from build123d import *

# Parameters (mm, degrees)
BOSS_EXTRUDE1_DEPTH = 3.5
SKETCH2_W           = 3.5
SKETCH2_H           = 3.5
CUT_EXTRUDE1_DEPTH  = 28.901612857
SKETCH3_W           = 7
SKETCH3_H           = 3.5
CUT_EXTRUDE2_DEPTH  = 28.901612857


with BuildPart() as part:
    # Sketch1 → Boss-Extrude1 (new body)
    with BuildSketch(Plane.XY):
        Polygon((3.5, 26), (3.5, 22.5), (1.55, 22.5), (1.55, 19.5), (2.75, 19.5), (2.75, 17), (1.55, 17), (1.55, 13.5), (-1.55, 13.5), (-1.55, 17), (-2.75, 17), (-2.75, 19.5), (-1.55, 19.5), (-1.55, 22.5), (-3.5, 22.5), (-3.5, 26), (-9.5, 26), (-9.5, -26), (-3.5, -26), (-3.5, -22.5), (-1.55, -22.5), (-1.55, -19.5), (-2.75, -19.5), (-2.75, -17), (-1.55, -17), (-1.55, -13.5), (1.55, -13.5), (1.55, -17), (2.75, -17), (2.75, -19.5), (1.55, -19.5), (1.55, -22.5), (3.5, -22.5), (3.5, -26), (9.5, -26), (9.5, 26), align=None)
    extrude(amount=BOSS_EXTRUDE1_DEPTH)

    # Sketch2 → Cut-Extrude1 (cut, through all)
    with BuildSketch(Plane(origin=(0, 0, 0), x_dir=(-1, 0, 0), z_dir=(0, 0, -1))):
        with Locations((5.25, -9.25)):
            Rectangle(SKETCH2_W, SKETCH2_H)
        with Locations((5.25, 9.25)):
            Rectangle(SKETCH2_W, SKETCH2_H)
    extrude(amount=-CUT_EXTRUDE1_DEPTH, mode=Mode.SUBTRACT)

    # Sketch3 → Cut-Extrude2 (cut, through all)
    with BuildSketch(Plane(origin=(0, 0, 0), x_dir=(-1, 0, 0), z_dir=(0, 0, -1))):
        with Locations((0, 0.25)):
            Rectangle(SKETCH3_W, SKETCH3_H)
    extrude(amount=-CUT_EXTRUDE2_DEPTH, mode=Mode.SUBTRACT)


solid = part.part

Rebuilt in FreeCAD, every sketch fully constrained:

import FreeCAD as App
import Part
import Sketcher

V = App.Vector
Q = App.Units.Quantity

doc = App.newDocument("Part")
params = doc.addObject("Spreadsheet::Sheet", "Params")
for row, (alias, value) in enumerate([
    ("sketch1_width", "6 mm"),
    ("sketch1_height", "3 mm"),
    ("sketch1_height2", "52 mm"),
    ("sketch1_width2", "1.2 mm"),
    ("sketch1_width3", "3.1 mm"),
    ("pad1_length", "3.5 mm"),
    ("sketch2_width", "3.5 mm"),
    ("sketch3_width", "7 mm"),
    ("sketch3_height", "3.5 mm"),
], start=1):
    params.set(f"A{row}", alias)
    params.set(f"B{row}", "=" + value)
    params.setAlias(f"B{row}", alias)

body = doc.addObject("PartDesign::Body", "Body")

sketch1 = doc.addObject("Sketcher::SketchObject", "Sketch")
body.addObject(sketch1)
sketch1.AttachmentSupport = (doc.XY_Plane, [""])
sketch1.MapMode = "FlatFace"
sketch1.addGeometry(Part.LineSegment(V(3.5, 26, 0), V(3.5, 22.5, 0)), False)
sketch1.addGeometry(Part.LineSegment(V(3.5, 22.5, 0), V(1.55, 22.5, 0)), False)
sketch1.addGeometry(Part.LineSegment(V(1.55, 22.5, 0), V(1.55, 19.5, 0)), False)
sketch1.addGeometry(Part.LineSegment(V(1.55, 19.5, 0), V(2.75, 19.5, 0)), False)
sketch1.addGeometry(Part.LineSegment(V(2.75, 19.5, 0), V(2.75, 17, 0)), False)
sketch1.addGeometry(Part.LineSegment(V(2.75, 17, 0), V(1.55, 17, 0)), False)
sketch1.addGeometry(Part.LineSegment(V(1.55, 17, 0), V(1.55, 13.5, 0)), False)
sketch1.addGeometry(Part.LineSegment(V(1.55, 13.5, 0), V(-1.55, 13.5, 0)), False)
sketch1.addGeometry(Part.LineSegment(V(-1.55, 13.5, 0), V(-1.55, 17, 0)), False)
sketch1.addGeometry(Part.LineSegment(V(-1.55, 17, 0), V(-2.75, 17, 0)), False)
sketch1.addGeometry(Part.LineSegment(V(-2.75, 17, 0), V(-2.75, 19.5, 0)), False)
sketch1.addGeometry(Part.LineSegment(V(-2.75, 19.5, 0), V(-1.55, 19.5, 0)), False)
sketch1.addGeometry(Part.LineSegment(V(-1.55, 19.5, 0), V(-1.55, 22.5, 0)), False)
sketch1.addGeometry(Part.LineSegment(V(-1.55, 22.5, 0), V(-3.5, 22.5, 0)), False)
sketch1.addGeometry(Part.LineSegment(V(-3.5, 22.5, 0), V(-3.5, 26, 0)), False)
sketch1.addGeometry(Part.LineSegment(V(-3.5, 26, 0), V(-9.5, 26, 0)), False)
sketch1.addGeometry(Part.LineSegment(V(-9.5, 26, 0), V(-9.5, -26, 0)), False)
sketch1.addGeometry(Part.LineSegment(V(-9.5, -26, 0), V(-3.5, -26, 0)), False)
sketch1.addGeometry(Part.LineSegment(V(-3.5, -26, 0), V(-3.5, -22.5, 0)), False)
sketch1.addGeometry(Part.LineSegment(V(-3.5, -22.5, 0), V(-1.55, -22.5, 0)), False)
sketch1.addGeometry(Part.LineSegment(V(-1.55, -22.5, 0), V(-1.55, -19.5, 0)), False)
sketch1.addGeometry(Part.LineSegment(V(-1.55, -19.5, 0), V(-2.75, -19.5, 0)), False)
sketch1.addGeometry(Part.LineSegment(V(-2.75, -19.5, 0), V(-2.75, -17, 0)), False)
sketch1.addGeometry(Part.LineSegment(V(-2.75, -17, 0), V(-1.55, -17, 0)), False)
sketch1.addGeometry(Part.LineSegment(V(-1.55, -17, 0), V(-1.55, -13.5, 0)), False)
sketch1.addGeometry(Part.LineSegment(V(-1.55, -13.5, 0), V(1.55, -13.5, 0)), False)
sketch1.addGeometry(Part.LineSegment(V(1.55, -13.5, 0), V(1.55, -17, 0)), False)
sketch1.addGeometry(Part.LineSegment(V(1.55, -17, 0), V(2.75, -17, 0)), False)
sketch1.addGeometry(Part.LineSegment(V(2.75, -17, 0), V(2.75, -19.5, 0)), False)
sketch1.addGeometry(Part.LineSegment(V(2.75, -19.5, 0), V(1.55, -19.5, 0)), False)
sketch1.addGeometry(Part.LineSegment(V(1.55, -19.5, 0), V(1.55, -22.5, 0)), False)
sketch1.addGeometry(Part.LineSegment(V(1.55, -22.5, 0), V(3.5, -22.5, 0)), False)
sketch1.addGeometry(Part.LineSegment(V(3.5, -22.5, 0), V(3.5, -26, 0)), False)
sketch1.addGeometry(Part.LineSegment(V(3.5, -26, 0), V(9.5, -26, 0)), False)
sketch1.addGeometry(Part.LineSegment(V(9.5, -26, 0), V(9.5, 26, 0)), False)
sketch1.addGeometry(Part.LineSegment(V(9.5, 26, 0), V(3.5, 26, 0)), False)
sketch1.addConstraint(Sketcher.Constraint("Coincident", 0, 2, 1, 1))
sketch1.addConstraint(Sketcher.Constraint("Coincident", 1, 2, 2, 1))
sketch1.addConstraint(Sketcher.Constraint("Coincident", 2, 2, 3, 1))
sketch1.addConstraint(Sketcher.Constraint("Coincident", 3, 2, 4, 1))
sketch1.addConstraint(Sketcher.Constraint("Coincident", 4, 2, 5, 1))
sketch1.addConstraint(Sketcher.Constraint("Coincident", 5, 2, 6, 1))
sketch1.addConstraint(Sketcher.Constraint("Coincident", 6, 2, 7, 1))
sketch1.addConstraint(Sketcher.Constraint("Coincident", 7, 2, 8, 1))
sketch1.addConstraint(Sketcher.Constraint("Coincident", 8, 2, 9, 1))
sketch1.addConstraint(Sketcher.Constraint("Coincident", 9, 2, 10, 1))
sketch1.addConstraint(Sketcher.Constraint("Coincident", 10, 2, 11, 1))
sketch1.addConstraint(Sketcher.Constraint("Coincident", 11, 2, 12, 1))
sketch1.addConstraint(Sketcher.Constraint("Coincident", 12, 2, 13, 1))
sketch1.addConstraint(Sketcher.Constraint("Coincident", 13, 2, 14, 1))
sketch1.addConstraint(Sketcher.Constraint("Coincident", 14, 2, 15, 1))
sketch1.addConstraint(Sketcher.Constraint("Coincident", 15, 2, 16, 1))
sketch1.addConstraint(Sketcher.Constraint("Coincident", 16, 2, 17, 1))
sketch1.addConstraint(Sketcher.Constraint("Coincident", 17, 2, 18, 1))
sketch1.addConstraint(Sketcher.Constraint("Coincident", 18, 2, 19, 1))
sketch1.addConstraint(Sketcher.Constraint("Coincident", 19, 2, 20, 1))
sketch1.addConstraint(Sketcher.Constraint("Coincident", 20, 2, 21, 1))
sketch1.addConstraint(Sketcher.Constraint("Coincident", 21, 2, 22, 1))
sketch1.addConstraint(Sketcher.Constraint("Coincident", 22, 2, 23, 1))
sketch1.addConstraint(Sketcher.Constraint("Coincident", 23, 2, 24, 1))
sketch1.addConstraint(Sketcher.Constraint("Coincident", 24, 2, 25, 1))
sketch1.addConstraint(Sketcher.Constraint("Coincident", 25, 2, 26, 1))
sketch1.addConstraint(Sketcher.Constraint("Coincident", 26, 2, 27, 1))
sketch1.addConstraint(Sketcher.Constraint("Coincident", 27, 2, 28, 1))
sketch1.addConstraint(Sketcher.Constraint("Coincident", 28, 2, 29, 1))
sketch1.addConstraint(Sketcher.Constraint("Coincident", 29, 2, 30, 1))
sketch1.addConstraint(Sketcher.Constraint("Coincident", 30, 2, 31, 1))
sketch1.addConstraint(Sketcher.Constraint("Coincident", 31, 2, 32, 1))
sketch1.addConstraint(Sketcher.Constraint("Coincident", 32, 2, 33, 1))
sketch1.addConstraint(Sketcher.Constraint("Coincident", 33, 2, 34, 1))
sketch1.addConstraint(Sketcher.Constraint("Coincident", 34, 2, 35, 1))
sketch1.addConstraint(Sketcher.Constraint("Coincident", 35, 2, 0, 1))
sketch1.addConstraint(Sketcher.Constraint("Vertical", 0))
sketch1.addConstraint(Sketcher.Constraint("Horizontal", 1))
sketch1.addConstraint(Sketcher.Constraint("Vertical", 2))
sketch1.addConstraint(Sketcher.Constraint("Horizontal", 3))
sketch1.addConstraint(Sketcher.Constraint("Vertical", 4))
sketch1.addConstraint(Sketcher.Constraint("Horizontal", 5))
sketch1.addConstraint(Sketcher.Constraint("Vertical", 6))
sketch1.addConstraint(Sketcher.Constraint("Horizontal", 7))
sketch1.addConstraint(Sketcher.Constraint("Vertical", 8))
sketch1.addConstraint(Sketcher.Constraint("Horizontal", 9))
sketch1.addConstraint(Sketcher.Constraint("Vertical", 10))
sketch1.addConstraint(Sketcher.Constraint("Horizontal", 11))
sketch1.addConstraint(Sketcher.Constraint("Vertical", 12))
sketch1.addConstraint(Sketcher.Constraint("Horizontal", 13))
sketch1.addConstraint(Sketcher.Constraint("Vertical", 14))
sketch1.addConstraint(Sketcher.Constraint("Horizontal", 15))
sketch1.addConstraint(Sketcher.Constraint("Vertical", 16))
sketch1.addConstraint(Sketcher.Constraint("Horizontal", 17))
sketch1.addConstraint(Sketcher.Constraint("Vertical", 18))
sketch1.addConstraint(Sketcher.Constraint("Horizontal", 19))
sketch1.addConstraint(Sketcher.Constraint("Vertical", 20))
sketch1.addConstraint(Sketcher.Constraint("Horizontal", 21))
sketch1.addConstraint(Sketcher.Constraint("Vertical", 22))
sketch1.addConstraint(Sketcher.Constraint("Horizontal", 23))
sketch1.addConstraint(Sketcher.Constraint("Vertical", 24))
sketch1.addConstraint(Sketcher.Constraint("Horizontal", 25))
sketch1.addConstraint(Sketcher.Constraint("Vertical", 26))
sketch1.addConstraint(Sketcher.Constraint("Horizontal", 27))
sketch1.addConstraint(Sketcher.Constraint("Vertical", 28))
sketch1.addConstraint(Sketcher.Constraint("Horizontal", 29))
sketch1.addConstraint(Sketcher.Constraint("Vertical", 30))
sketch1.addConstraint(Sketcher.Constraint("Horizontal", 31))
sketch1.addConstraint(Sketcher.Constraint("Vertical", 32))
sketch1.addConstraint(Sketcher.Constraint("Horizontal", 33))
sketch1.addConstraint(Sketcher.Constraint("Vertical", 34))
sketch1.addConstraint(Sketcher.Constraint("Horizontal", 35))
sketch1.addConstraint(Sketcher.Constraint("Symmetric", 0, 2, 18, 2, -1, 1))
sketch1.addConstraint(Sketcher.Constraint("Symmetric", 2, 2, 20, 2, -1, 1))
sketch1.addConstraint(Sketcher.Constraint("Symmetric", 4, 2, 22, 2, -1, 1))
sketch1.addConstraint(Sketcher.Constraint("Symmetric", 6, 2, 24, 2, -1, 1))
sketch1.addConstraint(Sketcher.Constraint("Symmetric", 8, 2, 26, 2, -1, 1))
sketch1.addConstraint(Sketcher.Constraint("Symmetric", 10, 2, 28, 2, -1, 1))
sketch1.addConstraint(Sketcher.Constraint("Symmetric", 12, 2, 30, 2, -1, 1))
sketch1.addConstraint(Sketcher.Constraint("Symmetric", 14, 2, 32, 2, -1, 1))
sketch1.addConstraint(Sketcher.Constraint("Symmetric", 16, 2, 34, 2, -1, 1))
sketch1.addConstraint(Sketcher.Constraint("Symmetric", 5, 2, 8, 2, -2))
sketch1.addConstraint(Sketcher.Constraint("Symmetric", 3, 2, 10, 2, -2))
sketch1.addConstraint(Sketcher.Constraint("Symmetric", 1, 2, 12, 2, -2))
sketch1.addConstraint(Sketcher.Constraint("Symmetric", 17, 2, 32, 2, -2))
sketch1.addConstraint(Sketcher.Constraint("Vertical", 2, 2, 5, 2))
sketch1.addConstraint(Sketcher.Constraint("Equal", 0, 6))
sketch1.addConstraint(Sketcher.Constraint("DistanceX", 15, 2, 15, 1, Q("6 mm")))
sketch1.addConstraint(Sketcher.Constraint("DistanceY", 2, 2, 2, 1, Q("3 mm")))
sketch1.addConstraint(Sketcher.Constraint("DistanceY", 16, 2, 16, 1, Q("52 mm")))
sketch1.addConstraint(Sketcher.Constraint("DistanceX", 3, 1, 3, 2, Q("1.2 mm")))
sketch1.addConstraint(Sketcher.Constraint("DistanceX", 7, 2, 7, 1, Q("3.1 mm")))
sketch1.addConstraint(Sketcher.Constraint("DistanceY", 0, 2, 0, 1, Q("3.5 mm")))
sketch1.addConstraint(Sketcher.Constraint("DistanceY", 4, 2, 4, 1, Q("2.5 mm")))
sketch1.addConstraint(Sketcher.Constraint("DistanceX", 1, 2, 1, 1, Q("1.95 mm")))
sketch1.setExpression("Constraints[87]", "Params.sketch1_width")
sketch1.setExpression("Constraints[88]", "Params.sketch1_height")
sketch1.setExpression("Constraints[89]", "Params.sketch1_height2")
sketch1.setExpression("Constraints[90]", "Params.sketch1_width2")
sketch1.setExpression("Constraints[91]", "Params.sketch1_width3")
pad1 = doc.addObject("PartDesign::Pad", "Pad")
body.addObject(pad1)
pad1.Profile = sketch1
pad1.setExpression("Length", "Params.pad1_length")

sketch2 = doc.addObject("Sketcher::SketchObject", "Sketch001")
body.addObject(sketch2)
sketch2.AttachmentSupport = (doc.XY_Plane, [""])
sketch2.MapMode = "FlatFace"
sketch2.addGeometry(Part.LineSegment(V(-3.5, -7.5, 0), V(-3.5, -11, 0)), False)
sketch2.addGeometry(Part.LineSegment(V(-3.5, -11, 0), V(-7, -11, 0)), False)
sketch2.addGeometry(Part.LineSegment(V(-7, -11, 0), V(-7, -7.5, 0)), False)
sketch2.addGeometry(Part.LineSegment(V(-7, -7.5, 0), V(-3.5, -7.5, 0)), False)
sketch2.addGeometry(Part.LineSegment(V(-3.5, 11, 0), V(-3.5, 7.5, 0)), False)
sketch2.addGeometry(Part.LineSegment(V(-3.5, 7.5, 0), V(-7, 7.5, 0)), False)
sketch2.addGeometry(Part.LineSegment(V(-7, 7.5, 0), V(-7, 11, 0)), False)
sketch2.addGeometry(Part.LineSegment(V(-7, 11, 0), V(-3.5, 11, 0)), False)
sketch2.addConstraint(Sketcher.Constraint("Coincident", 0, 2, 1, 1))
sketch2.addConstraint(Sketcher.Constraint("Coincident", 1, 2, 2, 1))
sketch2.addConstraint(Sketcher.Constraint("Coincident", 2, 2, 3, 1))
sketch2.addConstraint(Sketcher.Constraint("Coincident", 3, 2, 0, 1))
sketch2.addConstraint(Sketcher.Constraint("Coincident", 4, 2, 5, 1))
sketch2.addConstraint(Sketcher.Constraint("Coincident", 5, 2, 6, 1))
sketch2.addConstraint(Sketcher.Constraint("Coincident", 6, 2, 7, 1))
sketch2.addConstraint(Sketcher.Constraint("Coincident", 7, 2, 4, 1))
sketch2.addConstraint(Sketcher.Constraint("Vertical", 0))
sketch2.addConstraint(Sketcher.Constraint("Horizontal", 1))
sketch2.addConstraint(Sketcher.Constraint("Vertical", 2))
sketch2.addConstraint(Sketcher.Constraint("Horizontal", 3))
sketch2.addConstraint(Sketcher.Constraint("Vertical", 4))
sketch2.addConstraint(Sketcher.Constraint("Horizontal", 5))
sketch2.addConstraint(Sketcher.Constraint("Vertical", 6))
sketch2.addConstraint(Sketcher.Constraint("Horizontal", 7))
sketch2.addConstraint(Sketcher.Constraint("Symmetric", 3, 2, 4, 2, -1))
sketch2.addConstraint(Sketcher.Constraint("Symmetric", 1, 2, 6, 2, -1))
sketch2.addConstraint(Sketcher.Constraint("Equal", 7, 0))
sketch2.addConstraint(Sketcher.Constraint("DistanceX", 1, 2, 1, 1, Q("3.5 mm")))
sketch2.addConstraint(Sketcher.Constraint("DistanceY", 0, 2, -1, 1, Q("11 mm")))
sketch2.addConstraint(Sketcher.Constraint("DistanceX", 1, 2, -1, 1, Q("7 mm")))
sketch2.setExpression("Constraints[19]", "Params.sketch2_width")
pocket1 = doc.addObject("PartDesign::Pocket", "Pocket")
body.addObject(pocket1)
pocket1.Profile = sketch2
pocket1.Type = "ThroughAll"
pocket1.Reversed = True

sketch3 = doc.addObject("Sketcher::SketchObject", "Sketch002")
body.addObject(sketch3)
sketch3.AttachmentSupport = (doc.XY_Plane, [""])
sketch3.MapMode = "FlatFace"
sketch3.addGeometry(Part.LineSegment(V(3.5, 2, 0), V(3.5, -1.5, 0)), False)
sketch3.addGeometry(Part.LineSegment(V(3.5, -1.5, 0), V(-3.5, -1.5, 0)), False)
sketch3.addGeometry(Part.LineSegment(V(-3.5, -1.5, 0), V(-3.5, 2, 0)), False)
sketch3.addGeometry(Part.LineSegment(V(-3.5, 2, 0), V(3.5, 2, 0)), False)
sketch3.addConstraint(Sketcher.Constraint("Coincident", 0, 2, 1, 1))
sketch3.addConstraint(Sketcher.Constraint("Coincident", 1, 2, 2, 1))
sketch3.addConstraint(Sketcher.Constraint("Coincident", 2, 2, 3, 1))
sketch3.addConstraint(Sketcher.Constraint("Coincident", 3, 2, 0, 1))
sketch3.addConstraint(Sketcher.Constraint("Vertical", 0))
sketch3.addConstraint(Sketcher.Constraint("Horizontal", 1))
sketch3.addConstraint(Sketcher.Constraint("Vertical", 2))
sketch3.addConstraint(Sketcher.Constraint("Horizontal", 3))
sketch3.addConstraint(Sketcher.Constraint("DistanceX", 1, 2, 1, 1, Q("7 mm")))
sketch3.addConstraint(Sketcher.Constraint("DistanceY", 0, 2, 0, 1, Q("3.5 mm")))
sketch3.addConstraint(Sketcher.Constraint("DistanceY", -1, 1, 2, 2, Q("2 mm")))
sketch3.addConstraint(Sketcher.Constraint("DistanceX", -1, 1, 0, 2, Q("3.5 mm")))
sketch3.setExpression("Constraints[8]", "Params.sketch3_width")
sketch3.setExpression("Constraints[9]", "Params.sketch3_height")
pocket2 = doc.addObject("PartDesign::Pocket", "Pocket001")
body.addObject(pocket2)
pocket2.Profile = sketch3
pocket2.Type = "ThroughAll"
pocket2.Reversed = True

doc.recompute()
